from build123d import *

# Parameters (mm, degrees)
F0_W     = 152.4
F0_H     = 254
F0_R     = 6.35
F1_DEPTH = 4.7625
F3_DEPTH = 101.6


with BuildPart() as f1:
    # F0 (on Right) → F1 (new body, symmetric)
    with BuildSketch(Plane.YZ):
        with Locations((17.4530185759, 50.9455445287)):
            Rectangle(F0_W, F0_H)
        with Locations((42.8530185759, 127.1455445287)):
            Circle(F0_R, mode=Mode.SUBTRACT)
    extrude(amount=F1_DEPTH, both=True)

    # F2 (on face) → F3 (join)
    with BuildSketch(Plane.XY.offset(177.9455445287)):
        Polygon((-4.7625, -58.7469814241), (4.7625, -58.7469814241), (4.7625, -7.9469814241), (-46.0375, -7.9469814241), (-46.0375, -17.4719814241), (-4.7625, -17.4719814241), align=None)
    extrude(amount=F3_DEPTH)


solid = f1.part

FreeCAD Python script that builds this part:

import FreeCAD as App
import Part
import Sketcher
Q = App.Units.Quantity

doc = App.newDocument("Part")
params = doc.addObject("Spreadsheet::Sheet", "Params")
for row, (alias, value) in enumerate([
    ("sketch1_diameter", "0.5 in"),
    ("sketch1_width", "6 in"),
    ("sketch1_height", "10 in"),
    ("pad1_length", "0.375 in"),
    ("sketch2_width", "2 in"),
    ("sketch2_width2", "0.375 in"),
    ("pad2_length", "4 in"),
], start=1):
    params.set(f"A{row}", alias)
    params.set(f"B{row}", "=" + value)
    params.setAlias(f"B{row}", alias)

body = doc.addObject("PartDesign::Body", "Body")

# Sketch on YZ plane
sketch1 = doc.addObject("Sketcher::SketchObject", "Sketch")
body.addObject(sketch1)
sketch1.AttachmentSupport = (doc.YZ_Plane, [""])
sketch1.MapMode = "FlatFace"
sketch1.addGeometry([
    Part.LineSegment(App.Vector(-59, 178, 0), App.Vector(-59, -76, 0)),  # 0
    Part.LineSegment(App.Vector(-59, -76, 0), App.Vector(94, -76, 0)),  # 1
    Part.LineSegment(App.Vector(94, -76, 0), App.Vector(94, 178, 0)),  # 2
    Part.LineSegment(App.Vector(94, 178, 0), App.Vector(-59, 178, 0)),  # 3
    Part.Circle(App.Vector(43, 127, 0), App.Vector(0, 0, 1), 6),  # 4
], False)
sketch1.addConstraint([
    Sketcher.Constraint("Coincident", 0, 2, 1, 1),
    Sketcher.Constraint("Coincident", 1, 2, 2, 1),
    Sketcher.Constraint("Coincident", 2, 2, 3, 1),
    Sketcher.Constraint("Coincident", 3, 2, 0, 1),
    Sketcher.Constraint("Vertical", 0),
    Sketcher.Constraint("Horizontal", 1),
    Sketcher.Constraint("Vertical", 2),
    Sketcher.Constraint("Horizontal", 3),
    Sketcher.Constraint("Diameter", 4, Q("0.5 in")),
    Sketcher.Constraint("DistanceX", 1, 1, 1, 2, Q("6 in")),
    Sketcher.Constraint("DistanceY", 0, 2, 0, 1, Q("10 in")),
    Sketcher.Constraint("DistanceX", 0, 2, 4, 3, Q("4 in")),
    Sketcher.Constraint("DistanceY", 0, 2, 4, 3, Q("8 in")),
    Sketcher.Constraint("DistanceX", -1, 1, 4, 3, Q("42.853019 mm")),
    Sketcher.Constraint("DistanceY", -1, 1, 4, 3, Q("127.145545 mm")),
])
sketch1.setExpression("Constraints[8]", "Params.sketch1_diameter")
sketch1.setExpression("Constraints[9]", "Params.sketch1_width")
sketch1.setExpression("Constraints[10]", "Params.sketch1_height")
pad1 = doc.addObject("PartDesign::Pad", "Pad")
body.addObject(pad1)
pad1.Profile = sketch1
pad1.setExpression("Length", "Params.pad1_length")
pad1.Midplane = True

# Sketch on XY plane
sketch2 = doc.addObject("Sketcher::SketchObject", "Sketch001")
body.addObject(sketch2)
sketch2.AttachmentSupport = (doc.XY_Plane, [""])
sketch2.MapMode = "FlatFace"
sketch2.AttachmentOffset = App.Placement(App.Vector(0, 0, 177.945545), App.Rotation())
sketch2.addGeometry([
    Part.LineSegment(App.Vector(-5, -59, 0), App.Vector(5, -59, 0)),  # 0
    Part.LineSegment(App.Vector(5, -59, 0), App.Vector(5, -8, 0)),  # 1
    Part.LineSegment(App.Vector(5, -8, 0), App.Vector(-46, -8, 0)),  # 2
    Part.LineSegment(App.Vector(-46, -8, 0), App.Vector(-46, -17, 0)),  # 3
    Part.LineSegment(App.Vector(-46, -17, 0), App.Vector(-5, -17, 0)),  # 4
    Part.LineSegment(App.Vector(-5, -17, 0), App.Vector(-5, -59, 0)),  # 5
], False)
sketch2.addConstraint([
    Sketcher.Constraint("Coincident", 0, 2, 1, 1),
    Sketcher.Constraint("Coincident", 1, 2, 2, 1),
    Sketcher.Constraint("Coincident", 2, 2, 3, 1),
    Sketcher.Constraint("Coincident", 3, 2, 4, 1),
    Sketcher.Constraint("Coincident", 4, 2, 5, 1),
    Sketcher.Constraint("Coincident", 5, 2, 0, 1),
    Sketcher.Constraint("Horizontal", 0),
    Sketcher.Constraint("Vertical", 1),
    Sketcher.Constraint("Horizontal", 2),
    Sketcher.Constraint("Vertical", 3),
    Sketcher.Constraint("Horizontal", 4),
    Sketcher.Constraint("Vertical", 5),
    Sketcher.Constraint("Equal", 2, 1),
    Sketcher.Constraint("Equal", 0, 3),
    Sketcher.Constraint("DistanceX", 2, 2, 2, 1, Q("2 in")),
    Sketcher.Constraint("DistanceX", 0, 1, 0, 2, Q("0.375 in")),
    Sketcher.Constraint("DistanceX", -1, 1, 0, 2, Q("0.1875 in")),
    Sketcher.Constraint("DistanceY", 0, 2, -1, 1, Q("58.746981 mm")),
])
sketch2.setExpression("Constraints[14]", "Params.sketch2_width")
sketch2.setExpression("Constraints[15]", "Params.sketch2_width2")
pad2 = doc.addObject("PartDesign::Pad", "Pad001")
body.addObject(pad2)
pad2.Profile = sketch2
pad2.setExpression("Length", "Params.pad2_length")

doc.recompute()
